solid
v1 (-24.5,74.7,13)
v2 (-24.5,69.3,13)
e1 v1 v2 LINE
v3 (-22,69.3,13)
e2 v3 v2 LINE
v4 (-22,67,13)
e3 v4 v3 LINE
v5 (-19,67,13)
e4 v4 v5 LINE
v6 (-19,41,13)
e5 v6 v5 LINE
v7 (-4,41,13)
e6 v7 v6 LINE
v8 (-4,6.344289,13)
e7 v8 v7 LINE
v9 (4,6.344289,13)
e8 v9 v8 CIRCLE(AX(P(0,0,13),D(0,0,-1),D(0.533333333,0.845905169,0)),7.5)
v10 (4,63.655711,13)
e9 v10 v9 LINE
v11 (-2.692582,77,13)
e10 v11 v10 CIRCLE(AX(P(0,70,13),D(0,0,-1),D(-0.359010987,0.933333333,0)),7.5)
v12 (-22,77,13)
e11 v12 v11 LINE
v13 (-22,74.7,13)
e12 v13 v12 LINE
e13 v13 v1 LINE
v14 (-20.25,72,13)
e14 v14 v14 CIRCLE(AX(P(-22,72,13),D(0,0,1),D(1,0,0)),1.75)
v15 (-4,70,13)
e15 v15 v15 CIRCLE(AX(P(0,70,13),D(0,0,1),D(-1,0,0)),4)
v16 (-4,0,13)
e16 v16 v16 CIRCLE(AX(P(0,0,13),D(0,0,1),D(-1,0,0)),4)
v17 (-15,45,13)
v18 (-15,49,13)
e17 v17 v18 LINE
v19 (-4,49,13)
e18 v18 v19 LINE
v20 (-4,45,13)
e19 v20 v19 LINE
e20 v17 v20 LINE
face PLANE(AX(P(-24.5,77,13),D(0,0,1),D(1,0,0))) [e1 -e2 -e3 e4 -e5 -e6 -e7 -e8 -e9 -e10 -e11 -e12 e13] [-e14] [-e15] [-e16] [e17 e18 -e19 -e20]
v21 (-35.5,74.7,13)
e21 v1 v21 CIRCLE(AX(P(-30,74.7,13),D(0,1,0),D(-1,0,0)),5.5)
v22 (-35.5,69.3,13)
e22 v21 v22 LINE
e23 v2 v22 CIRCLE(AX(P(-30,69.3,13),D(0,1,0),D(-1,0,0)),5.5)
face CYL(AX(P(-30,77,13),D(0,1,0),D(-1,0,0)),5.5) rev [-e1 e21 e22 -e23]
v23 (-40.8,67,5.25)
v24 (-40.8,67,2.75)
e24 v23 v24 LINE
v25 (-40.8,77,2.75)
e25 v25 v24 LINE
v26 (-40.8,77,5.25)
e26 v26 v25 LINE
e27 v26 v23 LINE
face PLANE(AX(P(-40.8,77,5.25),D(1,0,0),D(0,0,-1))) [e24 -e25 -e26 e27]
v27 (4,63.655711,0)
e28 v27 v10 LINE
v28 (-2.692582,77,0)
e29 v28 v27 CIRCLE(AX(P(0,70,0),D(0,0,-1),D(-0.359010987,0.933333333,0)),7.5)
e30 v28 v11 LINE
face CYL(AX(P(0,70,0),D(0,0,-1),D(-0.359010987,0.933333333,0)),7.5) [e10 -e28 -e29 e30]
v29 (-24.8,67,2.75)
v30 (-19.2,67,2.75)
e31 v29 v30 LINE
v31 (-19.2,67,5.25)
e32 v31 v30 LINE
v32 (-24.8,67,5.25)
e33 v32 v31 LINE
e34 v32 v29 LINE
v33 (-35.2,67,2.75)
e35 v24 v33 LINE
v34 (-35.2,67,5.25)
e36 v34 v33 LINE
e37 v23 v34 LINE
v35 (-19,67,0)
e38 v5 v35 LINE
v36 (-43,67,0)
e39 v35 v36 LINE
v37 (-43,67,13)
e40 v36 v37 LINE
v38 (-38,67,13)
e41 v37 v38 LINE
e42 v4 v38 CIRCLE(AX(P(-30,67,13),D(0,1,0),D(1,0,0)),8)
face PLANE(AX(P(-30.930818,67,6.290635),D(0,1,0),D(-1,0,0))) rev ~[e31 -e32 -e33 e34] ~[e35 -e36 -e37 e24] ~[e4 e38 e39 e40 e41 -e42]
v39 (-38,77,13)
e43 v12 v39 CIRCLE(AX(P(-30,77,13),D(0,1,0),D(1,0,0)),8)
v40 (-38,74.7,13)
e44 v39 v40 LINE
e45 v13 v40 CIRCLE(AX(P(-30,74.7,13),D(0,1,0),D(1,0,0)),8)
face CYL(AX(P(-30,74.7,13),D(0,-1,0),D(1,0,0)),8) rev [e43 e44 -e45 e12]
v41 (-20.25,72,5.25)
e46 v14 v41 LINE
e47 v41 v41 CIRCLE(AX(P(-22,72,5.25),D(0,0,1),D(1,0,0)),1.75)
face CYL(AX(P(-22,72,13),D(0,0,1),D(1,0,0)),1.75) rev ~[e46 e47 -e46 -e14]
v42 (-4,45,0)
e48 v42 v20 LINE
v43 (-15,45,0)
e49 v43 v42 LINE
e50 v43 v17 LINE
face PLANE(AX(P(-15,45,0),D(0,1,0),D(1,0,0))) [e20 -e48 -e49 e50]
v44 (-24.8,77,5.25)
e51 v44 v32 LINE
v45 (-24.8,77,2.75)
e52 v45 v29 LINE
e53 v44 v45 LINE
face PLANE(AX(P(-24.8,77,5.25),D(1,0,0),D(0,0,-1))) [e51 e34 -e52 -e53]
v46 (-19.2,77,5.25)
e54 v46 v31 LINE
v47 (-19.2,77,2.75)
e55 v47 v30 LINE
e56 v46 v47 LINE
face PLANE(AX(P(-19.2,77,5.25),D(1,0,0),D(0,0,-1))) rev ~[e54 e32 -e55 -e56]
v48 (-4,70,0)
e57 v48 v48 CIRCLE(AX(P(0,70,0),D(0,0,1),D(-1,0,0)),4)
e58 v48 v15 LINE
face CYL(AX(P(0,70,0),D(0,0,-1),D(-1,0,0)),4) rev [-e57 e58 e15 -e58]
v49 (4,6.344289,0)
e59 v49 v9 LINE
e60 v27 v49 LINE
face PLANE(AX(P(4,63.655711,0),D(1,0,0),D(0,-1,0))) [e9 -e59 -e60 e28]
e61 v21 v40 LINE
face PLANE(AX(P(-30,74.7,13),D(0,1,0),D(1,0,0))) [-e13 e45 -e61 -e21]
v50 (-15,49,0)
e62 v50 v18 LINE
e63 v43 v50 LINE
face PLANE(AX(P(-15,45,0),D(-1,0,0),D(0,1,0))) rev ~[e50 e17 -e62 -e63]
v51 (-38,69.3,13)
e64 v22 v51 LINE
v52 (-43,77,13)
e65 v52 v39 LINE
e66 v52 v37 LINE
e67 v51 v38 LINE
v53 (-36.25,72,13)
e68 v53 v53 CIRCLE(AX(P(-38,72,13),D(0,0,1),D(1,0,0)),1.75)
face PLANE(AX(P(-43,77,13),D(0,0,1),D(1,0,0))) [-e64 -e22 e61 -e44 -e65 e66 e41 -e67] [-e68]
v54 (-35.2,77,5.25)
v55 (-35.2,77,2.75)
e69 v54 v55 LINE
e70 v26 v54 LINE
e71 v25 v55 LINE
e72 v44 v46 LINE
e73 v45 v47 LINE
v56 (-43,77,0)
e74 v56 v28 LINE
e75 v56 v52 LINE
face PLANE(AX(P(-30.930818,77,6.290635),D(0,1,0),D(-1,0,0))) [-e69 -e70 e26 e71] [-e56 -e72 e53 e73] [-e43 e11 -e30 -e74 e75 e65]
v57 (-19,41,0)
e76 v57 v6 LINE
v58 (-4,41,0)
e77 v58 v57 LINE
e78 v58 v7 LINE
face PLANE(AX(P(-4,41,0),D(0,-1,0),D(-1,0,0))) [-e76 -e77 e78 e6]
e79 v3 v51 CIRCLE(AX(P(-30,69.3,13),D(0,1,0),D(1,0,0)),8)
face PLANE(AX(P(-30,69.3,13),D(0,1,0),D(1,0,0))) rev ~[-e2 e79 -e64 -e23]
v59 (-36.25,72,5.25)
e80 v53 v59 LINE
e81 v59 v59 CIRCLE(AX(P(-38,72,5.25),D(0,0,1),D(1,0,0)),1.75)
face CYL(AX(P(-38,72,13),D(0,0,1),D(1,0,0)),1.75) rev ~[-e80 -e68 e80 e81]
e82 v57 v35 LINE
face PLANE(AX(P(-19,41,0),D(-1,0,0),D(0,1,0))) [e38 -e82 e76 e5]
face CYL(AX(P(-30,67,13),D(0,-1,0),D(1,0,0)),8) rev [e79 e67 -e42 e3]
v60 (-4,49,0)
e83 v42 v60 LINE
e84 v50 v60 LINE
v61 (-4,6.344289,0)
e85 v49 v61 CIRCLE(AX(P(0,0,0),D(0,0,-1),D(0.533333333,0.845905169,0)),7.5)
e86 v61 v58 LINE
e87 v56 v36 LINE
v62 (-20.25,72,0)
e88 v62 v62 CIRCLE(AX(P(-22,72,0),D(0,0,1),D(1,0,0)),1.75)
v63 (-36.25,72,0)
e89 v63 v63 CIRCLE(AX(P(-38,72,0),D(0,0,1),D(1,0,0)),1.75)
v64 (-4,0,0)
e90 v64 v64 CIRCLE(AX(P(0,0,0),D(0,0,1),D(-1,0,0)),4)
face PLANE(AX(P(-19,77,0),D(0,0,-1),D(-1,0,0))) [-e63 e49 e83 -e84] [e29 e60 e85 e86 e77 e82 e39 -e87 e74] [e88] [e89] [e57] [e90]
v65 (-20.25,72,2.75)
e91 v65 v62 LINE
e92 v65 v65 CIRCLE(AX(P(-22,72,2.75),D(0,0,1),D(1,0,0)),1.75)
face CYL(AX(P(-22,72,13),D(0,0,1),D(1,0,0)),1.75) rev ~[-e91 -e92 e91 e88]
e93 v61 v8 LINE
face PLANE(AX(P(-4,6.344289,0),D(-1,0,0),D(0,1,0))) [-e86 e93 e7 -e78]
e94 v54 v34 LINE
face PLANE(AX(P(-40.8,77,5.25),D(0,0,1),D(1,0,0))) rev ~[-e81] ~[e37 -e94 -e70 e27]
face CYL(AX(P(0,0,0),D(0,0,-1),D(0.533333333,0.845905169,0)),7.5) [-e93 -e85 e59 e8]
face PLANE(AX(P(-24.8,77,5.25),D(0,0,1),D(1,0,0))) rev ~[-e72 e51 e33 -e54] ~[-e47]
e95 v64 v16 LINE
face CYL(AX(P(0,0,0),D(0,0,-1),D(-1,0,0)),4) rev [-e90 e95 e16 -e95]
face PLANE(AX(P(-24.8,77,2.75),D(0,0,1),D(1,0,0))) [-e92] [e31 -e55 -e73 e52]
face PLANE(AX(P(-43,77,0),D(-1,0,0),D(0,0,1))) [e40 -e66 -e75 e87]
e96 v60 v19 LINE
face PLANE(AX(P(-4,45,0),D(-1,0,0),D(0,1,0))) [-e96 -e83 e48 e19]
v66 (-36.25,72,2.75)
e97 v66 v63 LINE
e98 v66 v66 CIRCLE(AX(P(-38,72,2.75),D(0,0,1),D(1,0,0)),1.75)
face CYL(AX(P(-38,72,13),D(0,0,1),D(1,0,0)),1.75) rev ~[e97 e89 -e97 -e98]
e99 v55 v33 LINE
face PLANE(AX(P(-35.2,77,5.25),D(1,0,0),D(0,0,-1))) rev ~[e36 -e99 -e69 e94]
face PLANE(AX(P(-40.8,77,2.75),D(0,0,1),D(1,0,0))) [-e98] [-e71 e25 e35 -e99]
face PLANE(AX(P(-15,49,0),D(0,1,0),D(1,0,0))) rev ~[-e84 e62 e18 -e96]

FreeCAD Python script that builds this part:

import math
import FreeCAD as App
import Part
import Sketcher
Q = App.Units.Quantity


def add_polygon(sketch, points):
    """Adds a closed chain of lines whose ends are joined by coincident constraints."""
    first, n = sketch.GeometryCount, len(points)
    for a, b in zip(points, points[1:] + points[:1]):
        sketch.addGeometry(Part.LineSegment(App.Vector(*a, 0), App.Vector(*b, 0)), False)
    for i in range(n):
        sketch.addConstraint(Sketcher.Constraint("Coincident", first + i, 2, first + (i + 1) % n, 1))

doc = App.newDocument("Part")
body = doc.addObject("PartDesign::Body", "Body")

# Sketch on XY plane
sketch1 = body.newObject("Sketcher::SketchObject", "Sketch")
sketch1.AttachmentSupport = (doc.getObject("XY_Plane"), [""])
sketch1.MapMode = "FlatFace"
sketch1.addGeometry(Part.LineSegment(App.Vector(4, 6.3, 0), App.Vector(4, 63.7, 0)), False)  # 0
sketch1.addGeometry(Part.ArcOfCircle(Part.Circle(App.Vector(0, 70, 0), App.Vector(0, 0, 1), 7.5), math.radians(-58), math.radians(111)), False)  # 1
sketch1.addGeometry(Part.LineSegment(App.Vector(-2.7, 77, 0), App.Vector(-19, 77, 0)), False)  # 2
sketch1.addGeometry(Part.LineSegment(App.Vector(-19, 77, 0), App.Vector(-19, 41, 0)), False)  # 3
sketch1.addGeometry(Part.LineSegment(App.Vector(-19, 41, 0), App.Vector(-4, 41, 0)), False)  # 4
sketch1.addGeometry(Part.LineSegment(App.Vector(-4, 41, 0), App.Vector(-4, 6.3, 0)), False)  # 5
sketch1.addGeometry(Part.ArcOfCircle(Part.Circle(App.Vector(0, 0, 0), App.Vector(0, 0, 1), 7.5), math.radians(122), math.radians(418)), False)  # 6
sketch1.addGeometry(Part.Circle(App.Vector(0, 0, 0), App.Vector(0, 0, 1), 4), False)  # 7
sketch1.addGeometry(Part.Circle(App.Vector(0, 70, 0), App.Vector(0, 0, 1), 4), False)  # 8
add_polygon(sketch1, [(-15, 45), (-15, 49), (-4, 49), (-4, 45)])  # lines 9-12
sketch1.addConstraint([
    Sketcher.Constraint("Coincident", 0, 2, 1, 1),
    Sketcher.Constraint("Coincident", 1, 2, 2, 1),
    Sketcher.Constraint("Coincident", 2, 2, 3, 1),
    Sketcher.Constraint("Coincident", 3, 2, 4, 1),
    Sketcher.Constraint("Coincident", 4, 2, 5, 1),
    Sketcher.Constraint("Coincident", 5, 2, 6, 1),
    Sketcher.Constraint("Coincident", 6, 2, 0, 1),
    Sketcher.Constraint("Vertical", 0),
    Sketcher.Constraint("Horizontal", 2),
    Sketcher.Constraint("Vertical", 3),
    Sketcher.Constraint("Horizontal", 4),
    Sketcher.Constraint("Vertical", 5),
    Sketcher.Constraint("Vertical", 9),
    Sketcher.Constraint("Horizontal", 10),
    Sketcher.Constraint("Vertical", 11),
    Sketcher.Constraint("Horizontal", 12),
    Sketcher.Constraint("Coincident", 6, 3, -1, 1),
    Sketcher.Constraint("Coincident", 7, 3, -1, 1),
    Sketcher.Constraint("Coincident", 8, 3, 1, 3),
    Sketcher.Constraint("Equal", 1, 6),
    Sketcher.Constraint("Equal", 7, 8),
    Sketcher.Constraint("PointOnObject", 1, 3, -2),
    Sketcher.Constraint("Horizontal", 5, 2, 6, 2),
    Sketcher.Constraint("Vertical", 5, 2, 10, 2),
    Sketcher.Constraint("Diameter", 7, Q("8 mm")),
    Sketcher.Constraint("Radius", 1, Q("7.5 mm")),
    Sketcher.Constraint("DistanceX", 4, 1, 4, 2, Q("15 mm")),
    Sketcher.Constraint("DistanceX", 10, 1, 10, 2, Q("11 mm")),
    Sketcher.Constraint("DistanceY", 3, 2, 3, 1, Q("36 mm")),
    Sketcher.Constraint("DistanceY", 9, 1, 9, 2, Q("4 mm")),
    Sketcher.Constraint("DistanceY", -1, 1, 1, 3, Q("70 mm")),
    Sketcher.Constraint("DistanceX", -1, 1, 0, 2, Q("4 mm")),
    Sketcher.Constraint("DistanceY", -1, 1, 1, 2, Q("77 mm")),
    Sketcher.Constraint("DistanceY", -1, 1, 9, 2, Q("49 mm")),
])
pad1 = body.newObject("PartDesign::Pad", "Pad")
pad1.Profile = sketch1
pad1.Length = 13

# Sketch on XZ plane
sketch2 = body.newObject("Sketcher::SketchObject", "Sketch001")
sketch2.AttachmentSupport = (doc.getObject("XZ_Plane"), [""])
sketch2.MapMode = "FlatFace"
sketch2.AttachmentOffset = App.Placement(App.Vector(0, 0, -77), App.Rotation())
sketch2.addGeometry([
    Part.LineSegment(App.Vector(-19, 0, 0), App.Vector(-19, 13, 0)),  # 0
    Part.LineSegment(App.Vector(-19, 13, 0), App.Vector(-24, 13, 0)),  # 1
    Part.ArcOfCircle(Part.Circle(App.Vector(-30, 13, 0), App.Vector(0, 0, 1), 6), math.radians(180), math.radians(360)),  # 2
    Part.LineSegment(App.Vector(-36, 13, 0), App.Vector(-43, 13, 0)),  # 3
    Part.LineSegment(App.Vector(-43, 13, 0), App.Vector(-43, 0, 0)),  # 4
    Part.LineSegment(App.Vector(-43, 0, 0), App.Vector(-19, 0, 0)),  # 5
], False)
sketch2.addConstraint([
    Sketcher.Constraint("Coincident", 0, 2, 1, 1),
    Sketcher.Constraint("Coincident", 1, 2, 2, 2),
    Sketcher.Constraint("Coincident", 2, 1, 3, 1),
    Sketcher.Constraint("Coincident", 3, 2, 4, 1),
    Sketcher.Constraint("Coincident", 4, 2, 5, 1),
    Sketcher.Constraint("Coincident", 5, 2, 0, 1),
    Sketcher.Constraint("Vertical", 0),
    Sketcher.Constraint("Horizontal", 1),
    Sketcher.Constraint("Horizontal", 3),
    Sketcher.Constraint("Vertical", 4),
    Sketcher.Constraint("Horizontal", 5),
    Sketcher.Constraint("PointOnObject", 4, 2, -1),
    Sketcher.Constraint("Horizontal", 2, 3, 0, 2),
    Sketcher.Constraint("Horizontal", 1, 2, 2, 1),
    Sketcher.Constraint("Radius", 2, Q("5.5 mm")),
    Sketcher.Constraint("DistanceX", 5, 1, 5, 2, Q("24 mm")),
    Sketcher.Constraint("DistanceY", 0, 1, 0, 2, Q("13 mm")),
    Sketcher.Constraint("DistanceX", 1, 2, 1, 1, Q("5.5 mm")),
    Sketcher.Constraint("DistanceX", 2, 3, -1, 1, Q("30 mm")),
])
pad2 = body.newObject("PartDesign::Pad", "Pad001")
pad2.Profile = sketch2
pad2.Length = 10

# Sketch on XZ plane
sketch3 = body.newObject("Sketcher::SketchObject", "Sketch002")
sketch3.AttachmentSupport = (doc.getObject("XZ_Plane"), [""])
sketch3.MapMode = "FlatFace"
sketch3.AttachmentOffset = App.Placement(App.Vector(0, 0, -67), App.Rotation())
sketch3.addGeometry(Part.Circle(App.Vector(-30, 13, 0), App.Vector(0, 0, 1), 8), False)
sketch3.addConstraint([
    Sketcher.Constraint("Diameter", 0, Q("16 mm")),
    Sketcher.Constraint("DistanceX", 0, 3, -1, 1, Q("30 mm")),
    Sketcher.Constraint("DistanceY", -1, 1, 0, 3, Q("13 mm")),
])
pocket1 = body.newObject("PartDesign::Pocket", "Pocket")
pocket1.Profile = sketch3
pocket1.Length = 2.3

# Sketch on XZ plane
sketch4 = body.newObject("Sketcher::SketchObject", "Sketch003")
sketch4.AttachmentSupport = (doc.getObject("XZ_Plane"), [""])
sketch4.MapMode = "FlatFace"
sketch4.AttachmentOffset = App.Placement(App.Vector(0, 0, -74.7), App.Rotation())
sketch4.addGeometry(Part.Circle(App.Vector(-30, 13, 0), App.Vector(0, 0, 1), 8), False)
sketch4.addConstraint([
    Sketcher.Constraint("Diameter", 0, Q("16 mm")),
    Sketcher.Constraint("DistanceX", 0, 3, -1, 1, Q("30 mm")),
    Sketcher.Constraint("DistanceY", -1, 1, 0, 3, Q("13 mm")),
])
pocket2 = body.newObject("PartDesign::Pocket", "Pocket001")
pocket2.Profile = sketch4
pocket2.Length = 2.3

# Sketch on XZ plane
sketch5 = body.newObject("Sketcher::SketchObject", "Sketch004")
sketch5.AttachmentSupport = (doc.getObject("XZ_Plane"), [""])
sketch5.MapMode = "FlatFace"
sketch5.AttachmentOffset = App.Placement(App.Vector(0, 0, -77), App.Rotation())
add_polygon(sketch5, [(-40.8, 2.8), (-40.8, 5.2), (-35.2, 5.2), (-35.2, 2.8)])  # lines 0-3
add_polygon(sketch5, [(-24.8, 2.8), (-24.8, 5.2), (-19.2, 5.2), (-19.2, 2.8)])  # lines 4-7
sketch5.addConstraint([
    Sketcher.Constraint("Vertical", 0),
    Sketcher.Constraint("Horizontal", 1),
    Sketcher.Constraint("Vertical", 2),
    Sketcher.Constraint("Horizontal", 3),
    Sketcher.Constraint("Vertical", 4),
    Sketcher.Constraint("Horizontal", 5),
    Sketcher.Constraint("Vertical", 6),
    Sketcher.Constraint("Horizontal", 7),
    Sketcher.Constraint("Horizontal", 1, 2, 4, 2),
    Sketcher.Constraint("Horizontal", 3, 2, 6, 2),
    Sketcher.Constraint("Equal", 3, 5),
    Sketcher.Constraint("DistanceX", 1, 1, 1, 2, Q("5.6 mm")),
    Sketcher.Constraint("DistanceY", 0, 1, 0, 2, Q("2.5 mm")),
    Sketcher.Constraint("DistanceX", 0, 2, 4, 2, Q("16 mm")),
    Sketcher.Constraint("DistanceX", 0, 2, -1, 1, Q("40.8 mm")),
    Sketcher.Constraint("DistanceY", -1, 1, 0, 2, Q("5.25 mm")),
])
pocket3 = body.newObject("PartDesign::Pocket", "Pocket002")
pocket3.Profile = sketch5
pocket3.Length = 10
pocket3.Reversed = True

# Sketch on XY plane
sketch6 = body.newObject("Sketcher::SketchObject", "Sketch005")
sketch6.AttachmentSupport = (doc.getObject("XY_Plane"), [""])
sketch6.MapMode = "FlatFace"
sketch6.AttachmentOffset = App.Placement(App.Vector(0, 0, 13), App.Rotation())
sketch6.addGeometry([
    Part.Circle(App.Vector(-38, 72, 0), App.Vector(0, 0, 1), 1.8),
    Part.Circle(App.Vector(-22, 72, 0), App.Vector(0, 0, 1), 1.8),
], False)
sketch6.addConstraint([
    Sketcher.Constraint("Equal", 0, 1),
    Sketcher.Constraint("Horizontal", 0, 3, 1, 3),
    Sketcher.Constraint("Diameter", 0, Q("3.5 mm")),
    Sketcher.Constraint("DistanceX", 0, 3, -1, 1, Q("38 mm")),
    Sketcher.Constraint("DistanceY", -1, 1, 0, 3, Q("72 mm")),
    Sketcher.Constraint("DistanceX", 1, 3, -1, 1, Q("22 mm")),
])
pocket4 = body.newObject("PartDesign::Pocket", "Pocket003")
pocket4.Profile = sketch6
pocket4.Type = "ThroughAll"

doc.recompute()
